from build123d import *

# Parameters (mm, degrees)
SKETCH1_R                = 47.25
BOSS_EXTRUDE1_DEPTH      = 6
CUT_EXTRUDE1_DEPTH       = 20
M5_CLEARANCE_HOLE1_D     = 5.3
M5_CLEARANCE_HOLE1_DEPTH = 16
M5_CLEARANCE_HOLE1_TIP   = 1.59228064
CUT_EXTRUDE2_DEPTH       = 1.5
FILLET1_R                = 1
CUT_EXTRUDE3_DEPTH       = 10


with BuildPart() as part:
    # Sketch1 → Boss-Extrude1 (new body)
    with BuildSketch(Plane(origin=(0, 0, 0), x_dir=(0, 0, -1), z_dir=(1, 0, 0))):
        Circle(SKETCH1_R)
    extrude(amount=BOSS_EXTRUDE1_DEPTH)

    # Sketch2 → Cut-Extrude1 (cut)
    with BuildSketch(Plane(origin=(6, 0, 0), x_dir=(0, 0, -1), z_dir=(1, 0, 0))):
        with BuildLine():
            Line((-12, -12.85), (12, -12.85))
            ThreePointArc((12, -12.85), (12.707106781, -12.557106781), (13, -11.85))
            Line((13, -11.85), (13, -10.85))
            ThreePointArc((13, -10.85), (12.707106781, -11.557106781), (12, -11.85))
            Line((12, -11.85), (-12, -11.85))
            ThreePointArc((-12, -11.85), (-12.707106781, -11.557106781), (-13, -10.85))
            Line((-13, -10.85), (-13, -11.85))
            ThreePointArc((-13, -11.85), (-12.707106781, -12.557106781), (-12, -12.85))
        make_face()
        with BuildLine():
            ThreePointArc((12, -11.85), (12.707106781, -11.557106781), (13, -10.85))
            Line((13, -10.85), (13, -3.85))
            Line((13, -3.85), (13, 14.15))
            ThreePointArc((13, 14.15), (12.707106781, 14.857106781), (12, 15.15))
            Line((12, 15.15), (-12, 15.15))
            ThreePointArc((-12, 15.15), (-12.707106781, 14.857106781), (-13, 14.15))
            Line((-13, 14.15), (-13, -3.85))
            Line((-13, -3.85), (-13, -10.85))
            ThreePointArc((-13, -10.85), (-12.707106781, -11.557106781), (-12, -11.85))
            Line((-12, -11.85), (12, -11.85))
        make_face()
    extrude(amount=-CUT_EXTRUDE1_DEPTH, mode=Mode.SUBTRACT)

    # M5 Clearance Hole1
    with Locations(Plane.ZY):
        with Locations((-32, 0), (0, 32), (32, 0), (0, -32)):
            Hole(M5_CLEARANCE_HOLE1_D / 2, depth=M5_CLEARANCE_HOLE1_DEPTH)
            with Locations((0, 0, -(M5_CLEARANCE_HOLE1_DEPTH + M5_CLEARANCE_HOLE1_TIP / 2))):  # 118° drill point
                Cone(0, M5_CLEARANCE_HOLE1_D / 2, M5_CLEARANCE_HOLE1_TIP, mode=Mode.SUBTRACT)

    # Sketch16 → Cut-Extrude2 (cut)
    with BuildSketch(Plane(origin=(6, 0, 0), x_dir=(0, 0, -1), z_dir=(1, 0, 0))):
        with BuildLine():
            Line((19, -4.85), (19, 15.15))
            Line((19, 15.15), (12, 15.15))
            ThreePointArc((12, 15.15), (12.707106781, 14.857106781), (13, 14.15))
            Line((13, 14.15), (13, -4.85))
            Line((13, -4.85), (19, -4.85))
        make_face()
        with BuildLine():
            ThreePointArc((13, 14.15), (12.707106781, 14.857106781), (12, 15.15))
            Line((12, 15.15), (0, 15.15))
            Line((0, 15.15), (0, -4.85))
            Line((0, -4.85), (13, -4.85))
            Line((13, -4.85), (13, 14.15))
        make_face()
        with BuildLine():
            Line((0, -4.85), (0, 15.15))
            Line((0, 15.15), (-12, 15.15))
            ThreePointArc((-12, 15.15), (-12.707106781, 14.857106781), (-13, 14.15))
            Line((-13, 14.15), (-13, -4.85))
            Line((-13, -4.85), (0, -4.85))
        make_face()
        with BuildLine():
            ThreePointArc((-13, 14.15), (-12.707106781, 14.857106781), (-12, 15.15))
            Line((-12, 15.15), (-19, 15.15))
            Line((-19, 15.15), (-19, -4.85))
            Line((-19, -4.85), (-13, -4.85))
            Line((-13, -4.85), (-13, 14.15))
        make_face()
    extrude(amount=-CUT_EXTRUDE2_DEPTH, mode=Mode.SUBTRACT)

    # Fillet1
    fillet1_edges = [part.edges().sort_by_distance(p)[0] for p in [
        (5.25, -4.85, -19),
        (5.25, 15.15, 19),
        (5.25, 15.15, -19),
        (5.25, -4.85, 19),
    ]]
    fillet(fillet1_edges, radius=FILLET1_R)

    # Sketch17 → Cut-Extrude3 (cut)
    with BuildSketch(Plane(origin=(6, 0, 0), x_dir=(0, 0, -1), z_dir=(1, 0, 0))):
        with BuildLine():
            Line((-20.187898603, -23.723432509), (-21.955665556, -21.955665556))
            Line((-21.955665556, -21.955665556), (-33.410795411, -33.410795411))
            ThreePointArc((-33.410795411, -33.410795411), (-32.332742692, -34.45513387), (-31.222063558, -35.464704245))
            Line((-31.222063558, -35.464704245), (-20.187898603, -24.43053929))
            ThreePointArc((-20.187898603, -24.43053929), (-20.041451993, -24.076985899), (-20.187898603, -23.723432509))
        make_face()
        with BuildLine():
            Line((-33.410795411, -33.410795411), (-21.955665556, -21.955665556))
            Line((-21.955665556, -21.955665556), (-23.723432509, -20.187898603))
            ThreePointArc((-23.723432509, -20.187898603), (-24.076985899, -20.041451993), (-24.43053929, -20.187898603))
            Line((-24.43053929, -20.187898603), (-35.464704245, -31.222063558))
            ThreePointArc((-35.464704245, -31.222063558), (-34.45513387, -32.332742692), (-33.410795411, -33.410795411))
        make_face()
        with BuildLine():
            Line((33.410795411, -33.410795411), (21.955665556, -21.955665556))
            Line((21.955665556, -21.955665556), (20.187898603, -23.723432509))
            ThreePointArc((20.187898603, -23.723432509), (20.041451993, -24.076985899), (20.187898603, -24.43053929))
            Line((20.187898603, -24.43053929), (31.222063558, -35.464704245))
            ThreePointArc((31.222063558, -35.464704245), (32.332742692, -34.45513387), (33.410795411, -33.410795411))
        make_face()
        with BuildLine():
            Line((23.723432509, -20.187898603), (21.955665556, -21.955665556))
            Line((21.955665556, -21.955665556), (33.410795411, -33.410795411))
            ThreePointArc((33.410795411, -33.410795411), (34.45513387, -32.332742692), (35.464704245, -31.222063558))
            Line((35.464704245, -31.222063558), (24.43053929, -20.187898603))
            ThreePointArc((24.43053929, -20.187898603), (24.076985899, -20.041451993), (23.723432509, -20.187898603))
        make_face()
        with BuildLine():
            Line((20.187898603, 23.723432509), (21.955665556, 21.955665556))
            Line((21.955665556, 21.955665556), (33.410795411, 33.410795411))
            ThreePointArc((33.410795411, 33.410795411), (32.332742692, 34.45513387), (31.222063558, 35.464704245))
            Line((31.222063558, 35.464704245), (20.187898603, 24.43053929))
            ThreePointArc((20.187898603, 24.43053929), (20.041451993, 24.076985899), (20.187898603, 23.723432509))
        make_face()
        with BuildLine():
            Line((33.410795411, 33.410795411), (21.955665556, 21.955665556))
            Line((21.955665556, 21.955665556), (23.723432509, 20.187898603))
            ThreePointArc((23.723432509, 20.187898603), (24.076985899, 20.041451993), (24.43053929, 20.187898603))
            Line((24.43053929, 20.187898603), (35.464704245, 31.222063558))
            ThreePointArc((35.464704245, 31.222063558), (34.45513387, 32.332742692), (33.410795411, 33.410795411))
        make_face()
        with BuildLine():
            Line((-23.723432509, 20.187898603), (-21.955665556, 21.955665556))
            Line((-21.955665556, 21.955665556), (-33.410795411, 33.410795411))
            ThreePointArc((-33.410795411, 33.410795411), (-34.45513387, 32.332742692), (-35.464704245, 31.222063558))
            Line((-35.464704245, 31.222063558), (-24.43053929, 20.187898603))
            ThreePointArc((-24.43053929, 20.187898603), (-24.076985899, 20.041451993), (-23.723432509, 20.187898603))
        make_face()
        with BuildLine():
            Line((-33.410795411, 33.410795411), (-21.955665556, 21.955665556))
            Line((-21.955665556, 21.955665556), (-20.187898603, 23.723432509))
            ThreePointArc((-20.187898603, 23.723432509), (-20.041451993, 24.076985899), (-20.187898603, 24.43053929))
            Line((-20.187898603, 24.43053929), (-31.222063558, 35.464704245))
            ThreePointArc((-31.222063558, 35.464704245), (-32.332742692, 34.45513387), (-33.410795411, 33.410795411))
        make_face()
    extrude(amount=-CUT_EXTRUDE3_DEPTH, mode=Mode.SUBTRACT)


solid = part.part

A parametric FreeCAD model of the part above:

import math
import FreeCAD as App
import Part
import Sketcher

V = App.Vector


def edges_at(feature, points):
    """Names of the edges that pass closest to the given points."""
    edges = feature.Shape.Edges
    near = lambda p: min(range(len(edges)), key=lambda i: edges[i].distToShape(Part.Vertex(*p))[0])
    return sorted({f"Edge{near(p) + 1}" for p in points})


def add_polygon(sketch, points):
    """Adds a closed chain of lines whose ends are joined by coincident constraints."""
    first, n = sketch.GeometryCount, len(points)
    for a, b in zip(points, points[1:] + points[:1]):
        sketch.addGeometry(Part.LineSegment(App.Vector(*a, 0), App.Vector(*b, 0)), False)
    for i in range(n):
        sketch.addConstraint(Sketcher.Constraint("Coincident", first + i, 2, first + (i + 1) % n, 1))

doc = App.newDocument("Part")
body = doc.addObject("PartDesign::Body", "Body")

sketch1 = body.newObject("Sketcher::SketchObject", "Sketch")
sketch1.AttachmentSupport = (doc.getObject("YZ_Plane"), [""])
sketch1.MapMode = "FlatFace"
sketch1.addGeometry(Part.Circle(V(0, 0, 0), V(0, 0, 1), 47), False)
sketch1.addConstraint(Sketcher.Constraint("Coincident", 0, 3, -1, 1))
sketch1.addConstraint(Sketcher.Constraint("Diameter", 0, 94.5))
pad1 = body.newObject("PartDesign::Pad", "Pad")
pad1.Profile = sketch1
pad1.Length = 6

sketch2 = body.newObject("Sketcher::SketchObject", "Sketch001")
sketch2.AttachmentSupport = (doc.getObject("YZ_Plane"), [""])
sketch2.MapMode = "FlatFace"
sketch2.AttachmentOffset = App.Placement(V(0, 0, 6), App.Rotation())
sketch2.addGeometry(Part.LineSegment(V(-12.8, 12, 0), V(-12.8, -12, 0)), False)
sketch2.addGeometry(Part.ArcOfCircle(Part.Circle(V(-11.8, -12, 0), V(0, 0, 1), 1), math.radians(-180), math.radians(-90)), False)
sketch2.addGeometry(Part.LineSegment(V(-11.8, -13, 0), V(14.2, -13, 0)), False)
sketch2.addGeometry(Part.ArcOfCircle(Part.Circle(V(14.1, -12, 0), V(0, 0, 1), 1), math.radians(-90), math.radians(0)), False)
sketch2.addGeometry(Part.LineSegment(V(15.2, -12, 0), V(15.2, 12, 0)), False)
sketch2.addGeometry(Part.ArcOfCircle(Part.Circle(V(14.1, 12, 0), V(0, 0, 1), 1), math.radians(0), math.radians(90)), False)
sketch2.addGeometry(Part.LineSegment(V(14.2, 13, 0), V(-11.8, 13, 0)), False)
sketch2.addGeometry(Part.ArcOfCircle(Part.Circle(V(-11.8, 12, 0), V(0, 0, 1), 1), math.radians(90), math.radians(180)), False)
sketch2.addConstraint(Sketcher.Constraint("Tangent", 0, 2, 1, 1))
sketch2.addConstraint(Sketcher.Constraint("Tangent", 1, 2, 2, 1))
sketch2.addConstraint(Sketcher.Constraint("Tangent", 2, 2, 3, 1))
sketch2.addConstraint(Sketcher.Constraint("Tangent", 3, 2, 4, 1))
sketch2.addConstraint(Sketcher.Constraint("Tangent", 4, 2, 5, 1))
sketch2.addConstraint(Sketcher.Constraint("Tangent", 5, 2, 6, 1))
sketch2.addConstraint(Sketcher.Constraint("Tangent", 6, 2, 7, 1))
sketch2.addConstraint(Sketcher.Constraint("Tangent", 7, 2, 0, 1))
sketch2.addConstraint(Sketcher.Constraint("Vertical", 0))
sketch2.addConstraint(Sketcher.Constraint("Horizontal", 2))
sketch2.addConstraint(Sketcher.Constraint("Vertical", 4))
sketch2.addConstraint(Sketcher.Constraint("Horizontal", 6))
sketch2.addConstraint(Sketcher.Constraint("Equal", 1, 3))
sketch2.addConstraint(Sketcher.Constraint("Equal", 3, 5))
sketch2.addConstraint(Sketcher.Constraint("Equal", 5, 7))
sketch2.addConstraint(Sketcher.Constraint("Radius", 1, 1.0))
sketch2.addConstraint(Sketcher.Constraint("DistanceX", 2, 1, 2, 2, 26.0))
sketch2.addConstraint(Sketcher.Constraint("DistanceY", 0, 2, 0, 1, 24.0))
sketch2.addConstraint(Sketcher.Constraint("DistanceY", 1, 3, -1, 1, 12.0))
sketch2.addConstraint(Sketcher.Constraint("DistanceX", 1, 3, -1, 1, 11.85))
pocket1 = body.newObject("PartDesign::Pocket", "Pocket")
pocket1.Profile = sketch2
pocket1.Length = 20

sketch3 = body.newObject("Sketcher::SketchObject", "Sketch002")
sketch3.AttachmentSupport = (doc.getObject("YZ_Plane"), [""])
sketch3.MapMode = "FlatFace"
sketch3.addGeometry(Part.Circle(V(0, -32, 0), V(0, 0, 1), 2.6), False)
sketch3.addGeometry(Part.Circle(V(32, 0, 0), V(0, 0, 1), 2.6), False)
sketch3.addGeometry(Part.Circle(V(0, 32, 0), V(0, 0, 1), 2.6), False)
sketch3.addGeometry(Part.Circle(V(-32, 0, 0), V(0, 0, 1), 2.6), False)
sketch3.addConstraint(Sketcher.Constraint("Equal", 0, 1))
sketch3.addConstraint(Sketcher.Constraint("Equal", 1, 2))
sketch3.addConstraint(Sketcher.Constraint("Equal", 2, 3))
sketch3.addConstraint(Sketcher.Constraint("Symmetric", 0, 3, 2, 3, -1, 1))
sketch3.addConstraint(Sketcher.Constraint("Symmetric", 1, 3, 3, 3, -1, 1))
sketch3.addConstraint(Sketcher.Constraint("PointOnObject", 0, 3, -2))
sketch3.addConstraint(Sketcher.Constraint("PointOnObject", 1, 3, -1))
sketch3.addConstraint(Sketcher.Constraint("Diameter", 0, 5.3))
sketch3.addConstraint(Sketcher.Constraint("DistanceY", 0, 3, -1, 1, 32.0))
sketch3.addConstraint(Sketcher.Constraint("DistanceX", -1, 1, 1, 3, 32.0))
doc.recompute()
hole = body.newObject("PartDesign::Hole", "Hole")
hole.Profile = sketch3
hole.ThreadType = "None"
hole.Diameter = 5.3
hole.DepthType = "Dimension"
hole.Depth = 16
hole.DrillPoint = "Angled"
hole.DrillPointAngle = 118
hole.Reversed = True

sketch4 = body.newObject("Sketcher::SketchObject", "Sketch003")
sketch4.AttachmentSupport = (doc.getObject("YZ_Plane"), [""])
sketch4.MapMode = "FlatFace"
sketch4.AttachmentOffset = App.Placement(V(0, 0, 6), App.Rotation())
add_polygon(sketch4, [(-5, -19), (15, -19), (15, 19), (-5, 19)])
sketch4.addConstraint(Sketcher.Constraint("Horizontal", 0))
sketch4.addConstraint(Sketcher.Constraint("Vertical", 1))
sketch4.addConstraint(Sketcher.Constraint("Horizontal", 2))
sketch4.addConstraint(Sketcher.Constraint("Vertical", 3))
sketch4.addConstraint(Sketcher.Constraint("DistanceX", 0, 1, 0, 2, 20.0))
sketch4.addConstraint(Sketcher.Constraint("DistanceY", 1, 1, 1, 2, 38.0))
sketch4.addConstraint(Sketcher.Constraint("DistanceY", 0, 2, -1, 1, 19.0))
sketch4.addConstraint(Sketcher.Constraint("DistanceX", -1, 1, 0, 2, 15.15))
pocket2 = body.newObject("PartDesign::Pocket", "Pocket001")
pocket2.Profile = sketch4
pocket2.Length = 1.5
doc.recompute()

fillet = body.newObject("PartDesign::Fillet", "Fillet")
fillet.Base = (pocket2, edges_at(pocket2, [
    (5.25, -4.85, -19),
    (5.25, 15.15, 19),
    (5.25, 15.15, -19),
    (5.25, -4.85, 19),
]))
fillet.Radius = 1

sketch5 = body.newObject("Sketcher::SketchObject", "Sketch004")
sketch5.AttachmentSupport = (doc.getObject("YZ_Plane"), [""])
sketch5.MapMode = "FlatFace"
sketch5.AttachmentOffset = App.Placement(V(0, 0, 6), App.Rotation())
sketch5.addGeometry(Part.LineSegment(V(-23.72, 20.19, 0), V(-20.19, 23.72, 0)), False)
sketch5.addGeometry(Part.ArcOfCircle(Part.Circle(V(-20.54, 24.08, 0), V(0, 0, 1), 0.5), math.radians(-45), math.radians(45)), False)
sketch5.addGeometry(Part.LineSegment(V(-20.19, 24.43, 0), V(-31.22, 35.46, 0)), False)
sketch5.addGeometry(Part.ArcOfCircle(Part.Circle(V(0, 0, 0), V(0, 0, 1), 47.25), math.radians(131.36), math.radians(135)), False)
sketch5.addGeometry(Part.ArcOfCircle(Part.Circle(V(0, 0, 0), V(0, 0, 1), 47.25), math.radians(135), math.radians(138.64)), False)
sketch5.addGeometry(Part.LineSegment(V(-35.46, 31.22, 0), V(-24.43, 20.19, 0)), False)
sketch5.addGeometry(Part.ArcOfCircle(Part.Circle(V(-24.08, 20.54, 0), V(0, 0, 1), 0.5), math.radians(-135), math.radians(-45)), False)
sketch5.addGeometry(Part.ArcOfCircle(Part.Circle(V(-24.08, -20.54, 0), V(0, 0, 1), 0.5), math.radians(45), math.radians(135)), False)
sketch5.addGeometry(Part.LineSegment(V(-24.43, -20.19, 0), V(-35.46, -31.22, 0)), False)
sketch5.addGeometry(Part.ArcOfCircle(Part.Circle(V(0, 0, 0), V(0, 0, 1), 47.25), math.radians(-138.64), math.radians(-135)), False)
sketch5.addGeometry(Part.ArcOfCircle(Part.Circle(V(0, 0, 0), V(0, 0, 1), 47.25), math.radians(-135), math.radians(-131.36)), False)
sketch5.addGeometry(Part.LineSegment(V(-31.22, -35.46, 0), V(-20.19, -24.43, 0)), False)
sketch5.addGeometry(Part.ArcOfCircle(Part.Circle(V(-20.54, -24.08, 0), V(0, 0, 1), 0.5), math.radians(-45), math.radians(45)), False)
sketch5.addGeometry(Part.LineSegment(V(-20.19, -23.72, 0), V(-23.72, -20.19, 0)), False)
sketch5.addGeometry(Part.LineSegment(V(23.72, -20.19, 0), V(20.19, -23.72, 0)), False)
sketch5.addGeometry(Part.ArcOfCircle(Part.Circle(V(20.54, -24.08, 0), V(0, 0, 1), 0.5), math.radians(135), math.radians(225)), False)
sketch5.addGeometry(Part.LineSegment(V(20.19, -24.43, 0), V(31.22, -35.46, 0)), False)
sketch5.addGeometry(Part.ArcOfCircle(Part.Circle(V(0, 0, 0), V(0, 0, 1), 47.25), math.radians(-48.64), math.radians(-45)), False)
sketch5.addGeometry(Part.ArcOfCircle(Part.Circle(V(0, 0, 0), V(0, 0, 1), 47.25), math.radians(-45), math.radians(-41.36)), False)
sketch5.addGeometry(Part.LineSegment(V(35.46, -31.22, 0), V(24.43, -20.19, 0)), False)
sketch5.addGeometry(Part.ArcOfCircle(Part.Circle(V(24.08, -20.54, 0), V(0, 0, 1), 0.5), math.radians(45), math.radians(135)), False)
sketch5.addGeometry(Part.LineSegment(V(20.19, 23.72, 0), V(23.72, 20.19, 0)), False)
sketch5.addGeometry(Part.ArcOfCircle(Part.Circle(V(24.08, 20.54, 0), V(0, 0, 1), 0.5), math.radians(-135), math.radians(-45)), False)
sketch5.addGeometry(Part.LineSegment(V(24.43, 20.19, 0), V(35.46, 31.22, 0)), False)
sketch5.addGeometry(Part.ArcOfCircle(Part.Circle(V(0, 0, 0), V(0, 0, 1), 47.25), math.radians(41.36), math.radians(45)), False)
sketch5.addGeometry(Part.ArcOfCircle(Part.Circle(V(0, 0, 0), V(0, 0, 1), 47.25), math.radians(45), math.radians(48.64)), False)
sketch5.addGeometry(Part.LineSegment(V(31.22, 35.46, 0), V(20.19, 24.43, 0)), False)
sketch5.addGeometry(Part.ArcOfCircle(Part.Circle(V(20.54, 24.08, 0), V(0, 0, 1), 0.5), math.radians(135), math.radians(225)), False)
sketch5.addConstraint(Sketcher.Constraint("Tangent", 0, 2, 1, 1))
sketch5.addConstraint(Sketcher.Constraint("Tangent", 1, 2, 2, 1))
sketch5.addConstraint(Sketcher.Constraint("Coincident", 2, 2, 3, 1))
sketch5.addConstraint(Sketcher.Constraint("Tangent", 3, 2, 4, 1))
sketch5.addConstraint(Sketcher.Constraint("Coincident", 4, 2, 5, 1))
sketch5.addConstraint(Sketcher.Constraint("Tangent", 5, 2, 6, 1))
sketch5.addConstraint(Sketcher.Constraint("Tangent", 6, 2, 0, 1))
sketch5.addConstraint(Sketcher.Constraint("Tangent", 7, 2, 8, 1))
sketch5.addConstraint(Sketcher.Constraint("Coincident", 8, 2, 9, 1))
sketch5.addConstraint(Sketcher.Constraint("Tangent", 9, 2, 10, 1))
sketch5.addConstraint(Sketcher.Constraint("Coincident", 10, 2, 11, 1))
sketch5.addConstraint(Sketcher.Constraint("Tangent", 11, 2, 12, 1))
sketch5.addConstraint(Sketcher.Constraint("Tangent", 12, 2, 13, 1))
sketch5.addConstraint(Sketcher.Constraint("Tangent", 13, 2, 7, 1))
sketch5.addConstraint(Sketcher.Constraint("Tangent", 14, 2, 15, 1))
sketch5.addConstraint(Sketcher.Constraint("Tangent", 15, 2, 16, 1))
sketch5.addConstraint(Sketcher.Constraint("Coincident", 16, 2, 17, 1))
sketch5.addConstraint(Sketcher.Constraint("Tangent", 17, 2, 18, 1))
sketch5.addConstraint(Sketcher.Constraint("Coincident", 18, 2, 19, 1))
sketch5.addConstraint(Sketcher.Constraint("Tangent", 19, 2, 20, 1))
sketch5.addConstraint(Sketcher.Constraint("Tangent", 20, 2, 14, 1))
sketch5.addConstraint(Sketcher.Constraint("Tangent", 21, 2, 22, 1))
sketch5.addConstraint(Sketcher.Constraint("Tangent", 22, 2, 23, 1))
sketch5.addConstraint(Sketcher.Constraint("Coincident", 23, 2, 24, 1))
sketch5.addConstraint(Sketcher.Constraint("Tangent", 24, 2, 25, 1))
sketch5.addConstraint(Sketcher.Constraint("Coincident", 25, 2, 26, 1))
sketch5.addConstraint(Sketcher.Constraint("Tangent", 26, 2, 27, 1))
sketch5.addConstraint(Sketcher.Constraint("Tangent", 27, 2, 21, 1))
sketch5.addConstraint(Sketcher.Constraint("Coincident", 3, 3, -1, 1))
sketch5.addConstraint(Sketcher.Constraint("Coincident", 9, 3, -1, 1))
sketch5.addConstraint(Sketcher.Constraint("Coincident", 17, 3, -1, 1))
sketch5.addConstraint(Sketcher.Constraint("Coincident", 24, 3, -1, 1))
sketch5.addConstraint(Sketcher.Constraint("Equal", 3, 4))
sketch5.addConstraint(Sketcher.Constraint("Equal", 1, 6))
sketch5.addConstraint(Sketcher.Constraint("Equal", 6, 7))
sketch5.addConstraint(Sketcher.Constraint("Equal", 4, 9))
sketch5.addConstraint(Sketcher.Constraint("Equal", 9, 10))
sketch5.addConstraint(Sketcher.Constraint("Equal", 7, 12))
sketch5.addConstraint(Sketcher.Constraint("Equal", 12, 15))
sketch5.addConstraint(Sketcher.Constraint("Equal", 10, 17))
sketch5.addConstraint(Sketcher.Constraint("Equal", 17, 18))
sketch5.addConstraint(Sketcher.Constraint("Equal", 15, 20))
sketch5.addConstraint(Sketcher.Constraint("Equal", 20, 22))
sketch5.addConstraint(Sketcher.Constraint("Equal", 18, 24))
sketch5.addConstraint(Sketcher.Constraint("Equal", 24, 25))
sketch5.addConstraint(Sketcher.Constraint("Equal", 22, 27))
sketch5.addConstraint(Sketcher.Constraint("Symmetric", 1, 3, 15, 3, -1, 1))
sketch5.addConstraint(Sketcher.Constraint("Symmetric", 6, 3, 20, 3, -1, 1))
sketch5.addConstraint(Sketcher.Constraint("Symmetric", 7, 3, 22, 3, -1, 1))
sketch5.addConstraint(Sketcher.Constraint("Symmetric", 12, 3, 27, 3, -1, 1))
sketch5.addConstraint(Sketcher.Constraint("Symmetric", 12, 3, 15, 3, -2))
sketch5.addConstraint(Sketcher.Constraint("Symmetric", 7, 3, 20, 3, -2))
sketch5.addConstraint(Sketcher.Constraint("Perpendicular", 0, 2))
sketch5.addConstraint(Sketcher.Constraint("Parallel", 2, 5))
sketch5.addConstraint(Sketcher.Constraint("Perpendicular", 5, 8))
sketch5.addConstraint(Sketcher.Constraint("Parallel", 8, 11))
sketch5.addConstraint(Sketcher.Constraint("Perpendicular", 11, 13))
sketch5.addConstraint(Sketcher.Constraint("Perpendicular", 14, 16))
sketch5.addConstraint(Sketcher.Constraint("Parallel", 16, 19))
sketch5.addConstraint(Sketcher.Constraint("Perpendicular", 21, 23))
sketch5.addConstraint(Sketcher.Constraint("Parallel", 23, 26))
sketch5.addConstraint(Sketcher.Constraint("Horizontal", 9, 2, 17, 2))
sketch5.addConstraint(Sketcher.Constraint("Horizontal", 3, 2, 24, 2))
sketch5.addConstraint(Sketcher.Constraint("Vertical", 3, 2, 9, 2))
sketch5.addConstraint(Sketcher.Constraint("Equal", 2, 5))
sketch5.addConstraint(Sketcher.Constraint("Radius", 1, 0.5))
sketch5.addConstraint(Sketcher.Constraint("Radius", 3, 47.25))
sketch5.addConstraint(Sketcher.Constraint("Distance", 0, 5.0))
sketch5.addConstraint(Sketcher.Constraint("DistanceX", 0, 2, -1, 1, 20.187899))
sketch5.addConstraint(Sketcher.Constraint("DistanceX", 3, 2, 2, 2, 2.188732))
pocket3 = body.newObject("PartDesign::Pocket", "Pocket002")
pocket3.Profile = sketch5
pocket3.Length = 10

doc.recompute()
